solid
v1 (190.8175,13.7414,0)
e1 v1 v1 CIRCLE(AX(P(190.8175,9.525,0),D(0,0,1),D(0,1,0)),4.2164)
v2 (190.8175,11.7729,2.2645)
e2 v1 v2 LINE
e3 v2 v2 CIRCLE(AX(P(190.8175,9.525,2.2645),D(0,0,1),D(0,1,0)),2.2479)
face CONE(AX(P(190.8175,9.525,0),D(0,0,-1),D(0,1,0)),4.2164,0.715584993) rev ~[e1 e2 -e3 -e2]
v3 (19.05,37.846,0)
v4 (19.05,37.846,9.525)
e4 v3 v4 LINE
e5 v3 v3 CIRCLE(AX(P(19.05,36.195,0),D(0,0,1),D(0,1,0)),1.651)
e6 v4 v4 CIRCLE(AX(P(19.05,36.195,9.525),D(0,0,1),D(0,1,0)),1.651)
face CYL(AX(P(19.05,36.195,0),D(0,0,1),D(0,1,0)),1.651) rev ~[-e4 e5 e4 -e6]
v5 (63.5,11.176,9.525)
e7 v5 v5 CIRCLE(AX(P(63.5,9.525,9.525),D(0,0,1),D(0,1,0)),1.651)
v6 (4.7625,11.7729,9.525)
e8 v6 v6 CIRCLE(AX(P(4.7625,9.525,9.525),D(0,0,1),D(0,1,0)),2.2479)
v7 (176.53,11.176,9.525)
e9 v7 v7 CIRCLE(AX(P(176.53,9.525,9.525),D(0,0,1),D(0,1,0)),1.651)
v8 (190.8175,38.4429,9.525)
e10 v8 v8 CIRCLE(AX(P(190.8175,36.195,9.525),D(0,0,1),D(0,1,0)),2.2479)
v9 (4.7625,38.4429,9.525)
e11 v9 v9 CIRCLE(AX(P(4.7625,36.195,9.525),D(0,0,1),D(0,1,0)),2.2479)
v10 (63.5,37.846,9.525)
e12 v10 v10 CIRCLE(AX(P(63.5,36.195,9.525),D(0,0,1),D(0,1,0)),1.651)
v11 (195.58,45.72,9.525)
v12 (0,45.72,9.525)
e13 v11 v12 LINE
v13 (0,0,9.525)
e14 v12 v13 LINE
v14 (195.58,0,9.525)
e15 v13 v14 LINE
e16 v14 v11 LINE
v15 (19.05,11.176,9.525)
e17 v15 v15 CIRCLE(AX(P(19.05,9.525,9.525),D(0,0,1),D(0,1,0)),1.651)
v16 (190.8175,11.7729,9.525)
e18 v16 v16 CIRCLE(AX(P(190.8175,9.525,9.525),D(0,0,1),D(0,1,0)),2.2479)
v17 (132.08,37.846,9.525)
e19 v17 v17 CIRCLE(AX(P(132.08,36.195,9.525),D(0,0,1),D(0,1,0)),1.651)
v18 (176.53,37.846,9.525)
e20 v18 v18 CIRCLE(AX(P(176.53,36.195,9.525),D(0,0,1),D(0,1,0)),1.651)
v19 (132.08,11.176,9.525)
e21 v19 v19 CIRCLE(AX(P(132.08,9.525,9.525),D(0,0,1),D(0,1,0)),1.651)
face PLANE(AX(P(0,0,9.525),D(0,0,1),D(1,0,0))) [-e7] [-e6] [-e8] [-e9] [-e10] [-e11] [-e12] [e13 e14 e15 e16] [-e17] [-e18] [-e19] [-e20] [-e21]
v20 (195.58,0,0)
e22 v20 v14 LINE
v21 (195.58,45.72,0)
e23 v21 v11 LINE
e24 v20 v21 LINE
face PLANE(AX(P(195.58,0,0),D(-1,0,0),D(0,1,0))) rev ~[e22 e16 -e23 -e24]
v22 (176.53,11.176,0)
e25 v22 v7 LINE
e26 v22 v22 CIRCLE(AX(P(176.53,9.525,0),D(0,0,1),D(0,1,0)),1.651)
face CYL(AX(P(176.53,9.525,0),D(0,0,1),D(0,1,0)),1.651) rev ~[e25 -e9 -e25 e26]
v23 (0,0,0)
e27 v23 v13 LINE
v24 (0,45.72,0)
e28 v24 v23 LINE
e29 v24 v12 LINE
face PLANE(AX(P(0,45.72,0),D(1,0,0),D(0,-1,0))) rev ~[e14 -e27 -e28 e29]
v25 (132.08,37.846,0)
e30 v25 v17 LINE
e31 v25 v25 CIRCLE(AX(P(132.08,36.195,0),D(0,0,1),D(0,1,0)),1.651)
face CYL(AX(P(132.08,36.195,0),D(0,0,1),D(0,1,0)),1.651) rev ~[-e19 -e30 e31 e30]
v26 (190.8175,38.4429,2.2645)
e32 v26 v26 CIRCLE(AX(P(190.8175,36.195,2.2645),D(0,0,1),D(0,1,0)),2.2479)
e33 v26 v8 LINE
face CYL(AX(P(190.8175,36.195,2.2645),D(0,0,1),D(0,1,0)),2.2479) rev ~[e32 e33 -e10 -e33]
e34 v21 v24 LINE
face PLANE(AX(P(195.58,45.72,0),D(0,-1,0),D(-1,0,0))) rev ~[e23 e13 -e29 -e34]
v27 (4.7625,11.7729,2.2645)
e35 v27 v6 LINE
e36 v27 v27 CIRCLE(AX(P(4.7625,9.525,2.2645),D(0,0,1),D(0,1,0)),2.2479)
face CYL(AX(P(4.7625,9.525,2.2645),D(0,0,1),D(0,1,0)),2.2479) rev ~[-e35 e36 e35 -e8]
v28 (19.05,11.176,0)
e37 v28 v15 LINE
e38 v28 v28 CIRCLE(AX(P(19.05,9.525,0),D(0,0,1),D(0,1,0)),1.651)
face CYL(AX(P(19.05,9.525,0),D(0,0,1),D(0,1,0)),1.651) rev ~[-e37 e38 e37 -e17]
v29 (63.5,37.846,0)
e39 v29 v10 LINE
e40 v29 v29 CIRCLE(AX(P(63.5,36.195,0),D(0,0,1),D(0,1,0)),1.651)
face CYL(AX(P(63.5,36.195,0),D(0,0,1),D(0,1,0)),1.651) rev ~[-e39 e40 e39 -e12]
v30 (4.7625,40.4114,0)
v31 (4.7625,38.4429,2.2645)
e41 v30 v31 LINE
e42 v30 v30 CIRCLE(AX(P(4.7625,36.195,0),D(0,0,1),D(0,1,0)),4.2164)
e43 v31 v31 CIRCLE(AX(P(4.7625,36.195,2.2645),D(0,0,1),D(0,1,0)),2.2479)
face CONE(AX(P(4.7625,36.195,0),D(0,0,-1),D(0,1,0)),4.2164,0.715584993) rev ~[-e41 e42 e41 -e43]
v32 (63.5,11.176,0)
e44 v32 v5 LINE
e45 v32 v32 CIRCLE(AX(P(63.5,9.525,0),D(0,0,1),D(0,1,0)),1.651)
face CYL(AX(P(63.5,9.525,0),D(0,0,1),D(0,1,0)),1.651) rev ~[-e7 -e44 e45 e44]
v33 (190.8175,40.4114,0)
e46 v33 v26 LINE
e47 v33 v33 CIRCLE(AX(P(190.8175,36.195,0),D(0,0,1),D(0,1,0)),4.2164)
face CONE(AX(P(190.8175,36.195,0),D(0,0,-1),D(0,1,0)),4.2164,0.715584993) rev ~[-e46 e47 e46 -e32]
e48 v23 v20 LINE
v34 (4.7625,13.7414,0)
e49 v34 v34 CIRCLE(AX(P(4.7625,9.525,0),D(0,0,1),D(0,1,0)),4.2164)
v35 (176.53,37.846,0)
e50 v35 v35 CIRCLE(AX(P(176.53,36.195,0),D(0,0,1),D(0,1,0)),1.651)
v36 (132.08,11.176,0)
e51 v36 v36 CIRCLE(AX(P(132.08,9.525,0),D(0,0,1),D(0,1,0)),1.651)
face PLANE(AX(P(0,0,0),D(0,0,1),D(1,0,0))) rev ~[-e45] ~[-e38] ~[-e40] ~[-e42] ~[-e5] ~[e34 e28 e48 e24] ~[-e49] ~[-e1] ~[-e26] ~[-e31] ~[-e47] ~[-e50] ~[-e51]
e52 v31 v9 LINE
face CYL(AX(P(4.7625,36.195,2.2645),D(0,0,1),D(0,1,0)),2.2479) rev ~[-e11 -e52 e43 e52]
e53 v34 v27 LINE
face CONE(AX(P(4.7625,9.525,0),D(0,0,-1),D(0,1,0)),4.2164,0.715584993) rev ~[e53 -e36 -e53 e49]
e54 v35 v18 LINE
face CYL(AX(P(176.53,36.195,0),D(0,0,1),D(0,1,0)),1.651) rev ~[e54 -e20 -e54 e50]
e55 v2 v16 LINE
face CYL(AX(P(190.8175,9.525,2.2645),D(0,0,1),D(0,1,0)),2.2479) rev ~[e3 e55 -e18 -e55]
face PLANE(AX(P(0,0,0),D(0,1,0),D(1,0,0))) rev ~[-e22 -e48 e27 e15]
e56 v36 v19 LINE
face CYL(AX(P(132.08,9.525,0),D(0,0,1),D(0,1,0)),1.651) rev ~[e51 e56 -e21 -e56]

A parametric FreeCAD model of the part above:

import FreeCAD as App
import Part
import Sketcher
Q = App.Units.Quantity


def add_polygon(sketch, points):
    """Adds a closed chain of lines whose ends are joined by coincident constraints."""
    first, n = sketch.GeometryCount, len(points)
    for a, b in zip(points, points[1:] + points[:1]):
        sketch.addGeometry(Part.LineSegment(App.Vector(*a, 0), App.Vector(*b, 0)), False)
    for i in range(n):
        sketch.addConstraint(Sketcher.Constraint("Coincident", first + i, 2, first + (i + 1) % n, 1))

doc = App.newDocument("Part")
body = doc.addObject("PartDesign::Body", "Body")

sketch1 = doc.addObject("Sketcher::SketchObject", "Sketch")
body.addObject(sketch1)
sketch1.AttachmentSupport = (doc.XY_Plane, [""])
sketch1.MapMode = "FlatFace"
add_polygon(sketch1, [(0, 46), (0, 0), (196, 0), (196, 46)])
sketch1.addConstraint([
    Sketcher.Constraint("Vertical", 0),
    Sketcher.Constraint("Horizontal", 1),
    Sketcher.Constraint("Vertical", 2),
    Sketcher.Constraint("Horizontal", 3),
    Sketcher.Constraint("Coincident", 0, 2, -1, 1),
    Sketcher.Constraint("DistanceX", 1, 1, 1, 2, Q("7.7 in")),
    Sketcher.Constraint("DistanceY", 0, 2, 0, 1, Q("1.8 in")),
])
pad1 = doc.addObject("PartDesign::Pad", "Pad")
body.addObject(pad1)
pad1.Profile = sketch1
pad1.Length = Q("0.375 in")

sketch2 = doc.addObject("Sketcher::SketchObject", "Sketch001")
body.addObject(sketch2)
sketch2.AttachmentSupport = (doc.XY_Plane, [""])
sketch2.MapMode = "FlatFace"
sketch2.addGeometry([
    Part.Circle(App.Vector(176.5, 36.2, 0), App.Vector(0, 0, 1), 1.7),
    Part.Circle(App.Vector(132.1, 36.2, 0), App.Vector(0, 0, 1), 1.7),
    Part.Circle(App.Vector(132.1, 9.5, 0), App.Vector(0, 0, 1), 1.7),
    Part.Circle(App.Vector(176.5, 9.5, 0), App.Vector(0, 0, 1), 1.7),
    Part.Circle(App.Vector(63.5, 9.5, 0), App.Vector(0, 0, 1), 1.7),
    Part.Circle(App.Vector(63.5, 36.2, 0), App.Vector(0, 0, 1), 1.7),
    Part.Circle(App.Vector(19.1, 36.2, 0), App.Vector(0, 0, 1), 1.7),
    Part.Circle(App.Vector(19.1, 9.5, 0), App.Vector(0, 0, 1), 1.7),
], False)
sketch2.addConstraint([
    Sketcher.Constraint("Equal", 0, 1),
    Sketcher.Constraint("Equal", 1, 2),
    Sketcher.Constraint("Equal", 2, 3),
    Sketcher.Constraint("Equal", 3, 4),
    Sketcher.Constraint("Equal", 4, 5),
    Sketcher.Constraint("Equal", 5, 6),
    Sketcher.Constraint("Equal", 6, 7),
    Sketcher.Constraint("Horizontal", 0, 3, 1, 3),
    Sketcher.Constraint("Horizontal", 2, 3, 3, 3),
    Sketcher.Constraint("Horizontal", 3, 3, 4, 3),
    Sketcher.Constraint("Horizontal", 1, 3, 5, 3),
    Sketcher.Constraint("Horizontal", 5, 3, 6, 3),
    Sketcher.Constraint("Horizontal", 4, 3, 7, 3),
    Sketcher.Constraint("Vertical", 1, 3, 2, 3),
    Sketcher.Constraint("Vertical", 0, 3, 3, 3),
    Sketcher.Constraint("Vertical", 4, 3, 5, 3),
    Sketcher.Constraint("Vertical", 6, 3, 7, 3),
    Sketcher.Constraint("Diameter", 0, Q("0.13 in")),
    Sketcher.Constraint("DistanceX", -1, 1, 1, 3, Q("5.2 in")),
    Sketcher.Constraint("DistanceX", -1, 1, 4, 3, Q("2.5 in")),
    Sketcher.Constraint("DistanceX", 6, 3, 0, 3, Q("6.2 in")),
    Sketcher.Constraint("DistanceX", -1, 1, 0, 3, Q("6.95 in")),
    Sketcher.Constraint("DistanceY", 2, 3, 1, 3, Q("1.05 in")),
    Sketcher.Constraint("DistanceY", -1, 1, 0, 3, Q("1.425 in")),
])
doc.recompute()
hole = doc.addObject("PartDesign::Hole", "Hole")
body.addObject(hole)
hole.Profile = sketch2
hole.ThreadType = "None"
hole.Diameter = Q("0.13 in")
hole.DepthType = "ThroughAll"
hole.Reversed = True

sketch3 = doc.addObject("Sketcher::SketchObject", "Sketch002")
body.addObject(sketch3)
sketch3.AttachmentSupport = (doc.XY_Plane, [""])
sketch3.MapMode = "FlatFace"
sketch3.addGeometry([
    Part.Circle(App.Vector(4.8, 9.5, 0), App.Vector(0, 0, 1), 2.2),
    Part.Circle(App.Vector(4.8, 36.2, 0), App.Vector(0, 0, 1), 2.2),
    Part.Circle(App.Vector(190.8, 36.2, 0), App.Vector(0, 0, 1), 2.2),
    Part.Circle(App.Vector(190.8, 9.5, 0), App.Vector(0, 0, 1), 2.2),
], False)
sketch3.addConstraint([
    Sketcher.Constraint("Equal", 0, 1),
    Sketcher.Constraint("Equal", 1, 2),
    Sketcher.Constraint("Equal", 2, 3),
    Sketcher.Constraint("Horizontal", 1, 3, 2, 3),
    Sketcher.Constraint("Horizontal", 0, 3, 3, 3),
    Sketcher.Constraint("Vertical", 0, 3, 1, 3),
    Sketcher.Constraint("Vertical", 2, 3, 3, 3),
    Sketcher.Constraint("Diameter", 0, Q("0.177 in")),
    Sketcher.Constraint("DistanceY", 0, 3, 1, 3, Q("1.05 in")),
    Sketcher.Constraint("DistanceX", -1, 1, 0, 3, Q("0.1875 in")),
    Sketcher.Constraint("DistanceY", -1, 1, 0, 3, Q("0.375 in")),
    Sketcher.Constraint("DistanceX", 1, 3, 2, 3, Q("7.325 in")),
])
doc.recompute()
hole2 = doc.addObject("PartDesign::Hole", "Hole001")
body.addObject(hole2)
hole2.Profile = sketch3
hole2.ThreadType = "None"
hole2.Diameter = Q("0.177 in")
hole2.DepthType = "ThroughAll"
hole2.HoleCutType = "Countersink"
hole2.HoleCutDiameter = Q("0.332 in")
hole2.HoleCutCountersinkAngle = 82
hole2.Reversed = True

doc.recompute()
